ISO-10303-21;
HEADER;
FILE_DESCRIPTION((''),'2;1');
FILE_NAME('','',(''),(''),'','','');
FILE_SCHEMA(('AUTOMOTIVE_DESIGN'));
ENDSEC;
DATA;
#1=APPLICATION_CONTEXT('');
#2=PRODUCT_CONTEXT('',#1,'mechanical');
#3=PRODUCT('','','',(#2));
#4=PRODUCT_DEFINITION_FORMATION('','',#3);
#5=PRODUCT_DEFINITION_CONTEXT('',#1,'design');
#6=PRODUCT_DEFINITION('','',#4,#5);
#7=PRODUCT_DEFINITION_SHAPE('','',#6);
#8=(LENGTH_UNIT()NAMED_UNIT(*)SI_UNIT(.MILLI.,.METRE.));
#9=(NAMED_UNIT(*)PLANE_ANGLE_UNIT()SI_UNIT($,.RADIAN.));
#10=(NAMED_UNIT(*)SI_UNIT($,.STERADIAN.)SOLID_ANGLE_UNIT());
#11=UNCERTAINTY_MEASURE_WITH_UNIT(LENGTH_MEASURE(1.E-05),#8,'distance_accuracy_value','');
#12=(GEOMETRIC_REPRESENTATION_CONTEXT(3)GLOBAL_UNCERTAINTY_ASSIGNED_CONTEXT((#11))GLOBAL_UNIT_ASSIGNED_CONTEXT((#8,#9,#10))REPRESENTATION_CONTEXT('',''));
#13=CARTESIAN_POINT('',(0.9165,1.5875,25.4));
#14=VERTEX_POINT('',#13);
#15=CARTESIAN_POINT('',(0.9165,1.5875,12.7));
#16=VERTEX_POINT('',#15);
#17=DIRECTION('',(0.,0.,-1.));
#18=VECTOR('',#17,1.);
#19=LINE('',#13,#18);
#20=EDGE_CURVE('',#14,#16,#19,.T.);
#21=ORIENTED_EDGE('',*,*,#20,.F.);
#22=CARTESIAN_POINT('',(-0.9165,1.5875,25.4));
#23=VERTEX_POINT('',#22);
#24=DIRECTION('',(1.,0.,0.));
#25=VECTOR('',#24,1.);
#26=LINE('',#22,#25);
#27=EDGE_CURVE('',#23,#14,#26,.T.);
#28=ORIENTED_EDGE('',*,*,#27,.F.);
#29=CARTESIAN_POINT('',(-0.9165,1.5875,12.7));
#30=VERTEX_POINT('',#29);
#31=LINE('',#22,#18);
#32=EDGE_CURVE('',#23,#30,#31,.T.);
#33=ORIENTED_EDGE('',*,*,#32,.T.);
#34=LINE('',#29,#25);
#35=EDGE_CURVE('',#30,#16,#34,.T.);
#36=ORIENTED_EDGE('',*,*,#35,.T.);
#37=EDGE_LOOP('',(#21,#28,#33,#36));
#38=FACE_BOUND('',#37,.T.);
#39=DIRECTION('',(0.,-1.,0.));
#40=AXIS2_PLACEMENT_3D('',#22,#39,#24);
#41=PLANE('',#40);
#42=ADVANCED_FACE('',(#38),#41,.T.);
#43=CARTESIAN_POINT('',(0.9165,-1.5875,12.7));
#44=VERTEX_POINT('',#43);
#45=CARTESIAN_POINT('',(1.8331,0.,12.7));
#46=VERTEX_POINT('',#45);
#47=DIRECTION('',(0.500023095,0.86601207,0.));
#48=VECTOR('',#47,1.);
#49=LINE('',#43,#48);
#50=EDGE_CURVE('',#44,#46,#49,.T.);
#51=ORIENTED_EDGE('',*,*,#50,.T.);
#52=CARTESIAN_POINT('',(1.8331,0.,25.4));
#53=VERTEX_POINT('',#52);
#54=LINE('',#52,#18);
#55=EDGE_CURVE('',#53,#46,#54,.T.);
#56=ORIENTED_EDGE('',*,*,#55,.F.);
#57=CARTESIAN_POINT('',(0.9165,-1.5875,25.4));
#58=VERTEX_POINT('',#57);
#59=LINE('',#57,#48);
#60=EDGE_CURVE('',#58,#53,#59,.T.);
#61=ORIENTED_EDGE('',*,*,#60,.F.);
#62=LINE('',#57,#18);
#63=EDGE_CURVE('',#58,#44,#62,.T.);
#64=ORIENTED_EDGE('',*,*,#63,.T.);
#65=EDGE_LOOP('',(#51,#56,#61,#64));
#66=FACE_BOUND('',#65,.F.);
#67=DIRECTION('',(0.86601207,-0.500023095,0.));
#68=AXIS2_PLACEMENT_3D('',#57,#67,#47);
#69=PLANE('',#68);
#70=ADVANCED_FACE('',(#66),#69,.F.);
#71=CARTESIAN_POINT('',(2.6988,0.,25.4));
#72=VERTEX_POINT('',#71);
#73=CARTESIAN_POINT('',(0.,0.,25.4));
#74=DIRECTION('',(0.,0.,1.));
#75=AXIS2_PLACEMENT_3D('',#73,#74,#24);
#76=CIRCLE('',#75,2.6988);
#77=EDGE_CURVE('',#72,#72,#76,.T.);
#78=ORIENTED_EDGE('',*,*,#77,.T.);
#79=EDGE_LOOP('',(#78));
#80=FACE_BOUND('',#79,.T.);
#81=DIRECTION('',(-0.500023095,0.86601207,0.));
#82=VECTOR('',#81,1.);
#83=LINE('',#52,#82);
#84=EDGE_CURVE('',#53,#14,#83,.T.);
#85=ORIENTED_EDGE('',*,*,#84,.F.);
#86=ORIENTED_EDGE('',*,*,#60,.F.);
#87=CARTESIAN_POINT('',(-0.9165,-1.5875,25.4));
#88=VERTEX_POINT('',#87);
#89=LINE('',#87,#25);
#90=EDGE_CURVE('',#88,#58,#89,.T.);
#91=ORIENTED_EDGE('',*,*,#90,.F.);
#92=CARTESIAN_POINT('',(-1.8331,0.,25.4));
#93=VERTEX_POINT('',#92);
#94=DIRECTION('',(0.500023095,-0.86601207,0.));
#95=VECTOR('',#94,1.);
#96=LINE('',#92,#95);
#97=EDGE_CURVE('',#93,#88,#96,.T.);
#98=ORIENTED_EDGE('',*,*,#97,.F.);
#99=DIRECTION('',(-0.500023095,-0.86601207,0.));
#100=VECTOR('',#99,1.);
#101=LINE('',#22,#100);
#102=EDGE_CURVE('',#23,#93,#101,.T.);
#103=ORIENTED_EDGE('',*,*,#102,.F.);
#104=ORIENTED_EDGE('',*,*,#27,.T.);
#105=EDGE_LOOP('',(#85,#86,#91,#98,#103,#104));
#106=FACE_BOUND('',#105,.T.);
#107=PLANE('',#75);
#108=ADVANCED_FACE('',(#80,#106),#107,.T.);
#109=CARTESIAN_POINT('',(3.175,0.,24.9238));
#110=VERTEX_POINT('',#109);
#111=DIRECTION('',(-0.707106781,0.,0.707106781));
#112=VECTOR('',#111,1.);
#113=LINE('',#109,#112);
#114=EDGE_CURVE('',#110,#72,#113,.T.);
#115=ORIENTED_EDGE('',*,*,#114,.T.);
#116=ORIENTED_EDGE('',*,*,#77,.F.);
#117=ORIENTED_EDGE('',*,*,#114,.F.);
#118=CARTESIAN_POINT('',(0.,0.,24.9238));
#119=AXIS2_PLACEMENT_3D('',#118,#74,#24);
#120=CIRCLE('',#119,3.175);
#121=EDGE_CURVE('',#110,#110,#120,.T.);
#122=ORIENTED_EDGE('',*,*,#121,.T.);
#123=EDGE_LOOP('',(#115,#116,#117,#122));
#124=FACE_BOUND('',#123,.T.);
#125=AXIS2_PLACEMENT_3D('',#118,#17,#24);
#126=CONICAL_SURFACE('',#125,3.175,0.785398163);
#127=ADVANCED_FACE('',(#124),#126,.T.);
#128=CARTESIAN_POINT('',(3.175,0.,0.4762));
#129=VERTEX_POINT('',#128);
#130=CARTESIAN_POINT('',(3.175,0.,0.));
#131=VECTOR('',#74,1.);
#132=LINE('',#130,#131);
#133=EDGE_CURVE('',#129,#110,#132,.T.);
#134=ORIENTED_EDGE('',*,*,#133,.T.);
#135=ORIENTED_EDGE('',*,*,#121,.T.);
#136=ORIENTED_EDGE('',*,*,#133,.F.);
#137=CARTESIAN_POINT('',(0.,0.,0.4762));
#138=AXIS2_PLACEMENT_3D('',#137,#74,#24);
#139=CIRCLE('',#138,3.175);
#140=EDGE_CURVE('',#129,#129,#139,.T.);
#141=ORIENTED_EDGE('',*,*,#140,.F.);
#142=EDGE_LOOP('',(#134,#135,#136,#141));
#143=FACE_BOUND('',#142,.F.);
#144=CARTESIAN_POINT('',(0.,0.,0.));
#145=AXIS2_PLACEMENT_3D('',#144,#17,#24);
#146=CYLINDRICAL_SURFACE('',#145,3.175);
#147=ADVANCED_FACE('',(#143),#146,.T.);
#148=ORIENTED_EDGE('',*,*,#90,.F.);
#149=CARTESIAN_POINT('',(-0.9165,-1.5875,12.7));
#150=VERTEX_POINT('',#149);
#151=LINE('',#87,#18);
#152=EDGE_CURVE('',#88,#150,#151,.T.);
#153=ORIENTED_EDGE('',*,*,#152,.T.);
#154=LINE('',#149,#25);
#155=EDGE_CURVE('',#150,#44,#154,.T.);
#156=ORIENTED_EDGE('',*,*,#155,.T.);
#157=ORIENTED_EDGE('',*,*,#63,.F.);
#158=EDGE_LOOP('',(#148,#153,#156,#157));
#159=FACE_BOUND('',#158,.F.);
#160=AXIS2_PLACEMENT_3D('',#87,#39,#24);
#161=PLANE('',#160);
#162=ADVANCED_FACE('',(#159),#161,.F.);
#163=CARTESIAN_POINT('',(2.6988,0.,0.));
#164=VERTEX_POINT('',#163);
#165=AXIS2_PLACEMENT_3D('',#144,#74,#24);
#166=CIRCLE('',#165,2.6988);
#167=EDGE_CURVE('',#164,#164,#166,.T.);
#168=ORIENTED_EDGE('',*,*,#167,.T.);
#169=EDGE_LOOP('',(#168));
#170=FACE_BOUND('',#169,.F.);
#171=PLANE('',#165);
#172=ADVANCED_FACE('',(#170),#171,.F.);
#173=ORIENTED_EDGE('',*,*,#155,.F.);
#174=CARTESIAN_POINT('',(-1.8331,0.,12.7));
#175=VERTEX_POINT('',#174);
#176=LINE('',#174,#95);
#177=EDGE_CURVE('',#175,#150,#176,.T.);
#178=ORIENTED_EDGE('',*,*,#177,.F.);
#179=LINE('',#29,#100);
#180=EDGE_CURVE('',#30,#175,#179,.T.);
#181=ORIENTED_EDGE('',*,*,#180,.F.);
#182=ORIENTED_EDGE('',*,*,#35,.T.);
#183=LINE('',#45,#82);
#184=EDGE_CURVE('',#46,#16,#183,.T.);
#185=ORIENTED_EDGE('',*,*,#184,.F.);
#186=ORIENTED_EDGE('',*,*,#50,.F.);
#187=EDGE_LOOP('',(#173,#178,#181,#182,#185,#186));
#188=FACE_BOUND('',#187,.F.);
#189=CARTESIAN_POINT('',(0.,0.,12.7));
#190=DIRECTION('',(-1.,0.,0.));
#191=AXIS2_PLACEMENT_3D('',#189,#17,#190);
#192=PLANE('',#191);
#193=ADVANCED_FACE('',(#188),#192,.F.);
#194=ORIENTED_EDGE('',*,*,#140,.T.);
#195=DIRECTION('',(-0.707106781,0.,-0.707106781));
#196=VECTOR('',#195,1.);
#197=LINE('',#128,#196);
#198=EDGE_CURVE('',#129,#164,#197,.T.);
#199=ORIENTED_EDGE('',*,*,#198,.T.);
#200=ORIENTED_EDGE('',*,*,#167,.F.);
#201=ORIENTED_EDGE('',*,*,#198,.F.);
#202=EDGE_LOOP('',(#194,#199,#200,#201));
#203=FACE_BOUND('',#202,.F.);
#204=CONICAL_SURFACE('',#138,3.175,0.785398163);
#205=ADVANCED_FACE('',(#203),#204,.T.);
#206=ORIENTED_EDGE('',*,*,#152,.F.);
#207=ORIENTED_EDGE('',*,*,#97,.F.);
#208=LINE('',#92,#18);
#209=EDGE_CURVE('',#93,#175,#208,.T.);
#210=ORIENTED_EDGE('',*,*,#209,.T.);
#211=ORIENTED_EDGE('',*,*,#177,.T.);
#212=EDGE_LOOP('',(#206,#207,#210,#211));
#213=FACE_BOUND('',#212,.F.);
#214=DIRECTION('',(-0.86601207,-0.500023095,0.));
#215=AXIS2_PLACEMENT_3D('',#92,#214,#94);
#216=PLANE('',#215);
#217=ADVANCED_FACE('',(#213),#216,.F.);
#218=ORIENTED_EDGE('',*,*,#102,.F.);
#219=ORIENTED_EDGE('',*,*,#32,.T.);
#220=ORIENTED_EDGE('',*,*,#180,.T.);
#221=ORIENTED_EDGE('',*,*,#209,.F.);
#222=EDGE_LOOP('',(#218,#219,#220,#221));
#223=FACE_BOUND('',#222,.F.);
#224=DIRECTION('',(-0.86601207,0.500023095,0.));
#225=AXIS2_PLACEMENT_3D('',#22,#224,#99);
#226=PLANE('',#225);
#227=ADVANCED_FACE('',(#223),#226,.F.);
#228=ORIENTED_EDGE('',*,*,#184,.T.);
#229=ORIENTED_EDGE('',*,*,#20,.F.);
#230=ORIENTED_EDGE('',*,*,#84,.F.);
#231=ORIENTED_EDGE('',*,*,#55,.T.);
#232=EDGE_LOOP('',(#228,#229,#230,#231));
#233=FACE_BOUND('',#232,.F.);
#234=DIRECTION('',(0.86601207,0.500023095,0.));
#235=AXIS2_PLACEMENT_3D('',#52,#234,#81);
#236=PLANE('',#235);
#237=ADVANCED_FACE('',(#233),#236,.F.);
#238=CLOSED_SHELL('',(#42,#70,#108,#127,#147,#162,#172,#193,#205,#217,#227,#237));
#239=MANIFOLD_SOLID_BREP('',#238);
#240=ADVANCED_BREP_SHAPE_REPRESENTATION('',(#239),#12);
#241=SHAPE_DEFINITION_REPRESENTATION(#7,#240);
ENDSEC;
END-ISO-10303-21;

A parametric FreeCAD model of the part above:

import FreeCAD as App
import Part
import Sketcher

V = App.Vector
Q = App.Units.Quantity


def edges_at(feature, points):
    """Names of the edges that pass closest to the given points."""
    edges = feature.Shape.Edges
    near = lambda p: min(range(len(edges)), key=lambda i: edges[i].distToShape(Part.Vertex(*p))[0])
    return sorted({f"Edge{near(p) + 1}" for p in points})


def add_polygon(sketch, points):
    """Adds a closed chain of lines whose ends are joined by coincident constraints."""
    first, n = sketch.GeometryCount, len(points)
    for a, b in zip(points, points[1:] + points[:1]):
        sketch.addGeometry(Part.LineSegment(App.Vector(*a, 0), App.Vector(*b, 0)), False)
    for i in range(n):
        sketch.addConstraint(Sketcher.Constraint("Coincident", first + i, 2, first + (i + 1) % n, 1))

doc = App.newDocument("Part")
body = doc.addObject("PartDesign::Body", "Body")

# Sketch on XY plane
sketch1 = body.newObject("Sketcher::SketchObject", "Sketch")
sketch1.AttachmentSupport = (doc.getObject("XY_Plane"), [""])
sketch1.MapMode = "FlatFace"
sketch1.addGeometry(Part.Circle(V(0, 0, 0), V(0, 0, 1), 3.175), False)
sketch1.addConstraint([
    Sketcher.Constraint("Coincident", 0, 3, -1, 1),
    Sketcher.Constraint("Diameter", 0, Q("0.25 in")),
])
pad1 = body.newObject("PartDesign::Pad", "Pad")
pad1.Profile = sketch1
pad1.Length = Q("1 in")
doc.recompute()

chamfer = body.newObject("PartDesign::Chamfer", "Chamfer")
chamfer.Base = (pad1, edges_at(pad1, [(-3.175, 0, 0), (-3.175, 0, 25.4)]))
chamfer.Size = 0.4762

# Sketch on XY plane
sketch2 = body.newObject("Sketcher::SketchObject", "Sketch001")
sketch2.AttachmentSupport = (doc.getObject("XY_Plane"), [""])
sketch2.MapMode = "FlatFace"
sketch2.AttachmentOffset = App.Placement(V(0, 0, 1 * 25.4), App.Rotation())
add_polygon(sketch2, [(0.9165, 1.5875), (-0.9165, 1.5875), (-1.8331, 0), (-0.9165, -1.5875), (0.9165, -1.5875), (1.8331, 0)])  # lines 0-5
sketch2.addConstraint([
    Sketcher.Constraint("Horizontal", 0),
    Sketcher.Constraint("Horizontal", 3),
    Sketcher.Constraint("Symmetric", 0, 2, 3, 2, -1, 1),
    Sketcher.Constraint("Symmetric", 1, 2, 4, 2, -1, 1),
    Sketcher.Constraint("PointOnObject", 1, 2, -1),
    Sketcher.Constraint("Parallel", 2, 5),
    Sketcher.Constraint("Vertical", 0, 2, 2, 2),
    Sketcher.Constraint("DistanceY", -1, 1, 0, 2, Q("0.0625 in")),
    Sketcher.Constraint("DistanceX", 0, 2, 0, 1, 1.833),
    Sketcher.Constraint("Distance", 1, 1.833),
])
pocket1 = body.newObject("PartDesign::Pocket", "Pocket")
pocket1.Profile = sketch2
pocket1.Length = Q("0.5 in")

doc.recompute()
